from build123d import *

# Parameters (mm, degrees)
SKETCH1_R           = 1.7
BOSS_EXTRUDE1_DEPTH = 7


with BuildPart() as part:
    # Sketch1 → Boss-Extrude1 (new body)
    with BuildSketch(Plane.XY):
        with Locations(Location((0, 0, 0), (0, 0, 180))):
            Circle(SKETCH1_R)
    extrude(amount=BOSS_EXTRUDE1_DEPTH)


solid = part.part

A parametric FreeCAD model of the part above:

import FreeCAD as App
import Part
import Sketcher

V = App.Vector
Q = App.Units.Quantity

doc = App.newDocument("Part")
body = doc.addObject("PartDesign::Body", "Body")

sketch1 = doc.addObject("Sketcher::SketchObject", "Sketch")
body.addObject(sketch1)
sketch1.AttachmentSupport = (doc.XY_Plane, [""])
sketch1.MapMode = "FlatFace"
sketch1.addGeometry(Part.Circle(V(0, 0, 0), V(0, 0, 1), 1.7), False)
sketch1.addConstraint(Sketcher.Constraint("Coincident", 0, 3, -1, 1))
sketch1.addConstraint(Sketcher.Constraint("Diameter", 0, Q("3.4 mm")))
pad1 = doc.addObject("PartDesign::Pad", "Pad")
body.addObject(pad1)
pad1.Profile = sketch1
pad1.Length = 7

doc.recompute()
